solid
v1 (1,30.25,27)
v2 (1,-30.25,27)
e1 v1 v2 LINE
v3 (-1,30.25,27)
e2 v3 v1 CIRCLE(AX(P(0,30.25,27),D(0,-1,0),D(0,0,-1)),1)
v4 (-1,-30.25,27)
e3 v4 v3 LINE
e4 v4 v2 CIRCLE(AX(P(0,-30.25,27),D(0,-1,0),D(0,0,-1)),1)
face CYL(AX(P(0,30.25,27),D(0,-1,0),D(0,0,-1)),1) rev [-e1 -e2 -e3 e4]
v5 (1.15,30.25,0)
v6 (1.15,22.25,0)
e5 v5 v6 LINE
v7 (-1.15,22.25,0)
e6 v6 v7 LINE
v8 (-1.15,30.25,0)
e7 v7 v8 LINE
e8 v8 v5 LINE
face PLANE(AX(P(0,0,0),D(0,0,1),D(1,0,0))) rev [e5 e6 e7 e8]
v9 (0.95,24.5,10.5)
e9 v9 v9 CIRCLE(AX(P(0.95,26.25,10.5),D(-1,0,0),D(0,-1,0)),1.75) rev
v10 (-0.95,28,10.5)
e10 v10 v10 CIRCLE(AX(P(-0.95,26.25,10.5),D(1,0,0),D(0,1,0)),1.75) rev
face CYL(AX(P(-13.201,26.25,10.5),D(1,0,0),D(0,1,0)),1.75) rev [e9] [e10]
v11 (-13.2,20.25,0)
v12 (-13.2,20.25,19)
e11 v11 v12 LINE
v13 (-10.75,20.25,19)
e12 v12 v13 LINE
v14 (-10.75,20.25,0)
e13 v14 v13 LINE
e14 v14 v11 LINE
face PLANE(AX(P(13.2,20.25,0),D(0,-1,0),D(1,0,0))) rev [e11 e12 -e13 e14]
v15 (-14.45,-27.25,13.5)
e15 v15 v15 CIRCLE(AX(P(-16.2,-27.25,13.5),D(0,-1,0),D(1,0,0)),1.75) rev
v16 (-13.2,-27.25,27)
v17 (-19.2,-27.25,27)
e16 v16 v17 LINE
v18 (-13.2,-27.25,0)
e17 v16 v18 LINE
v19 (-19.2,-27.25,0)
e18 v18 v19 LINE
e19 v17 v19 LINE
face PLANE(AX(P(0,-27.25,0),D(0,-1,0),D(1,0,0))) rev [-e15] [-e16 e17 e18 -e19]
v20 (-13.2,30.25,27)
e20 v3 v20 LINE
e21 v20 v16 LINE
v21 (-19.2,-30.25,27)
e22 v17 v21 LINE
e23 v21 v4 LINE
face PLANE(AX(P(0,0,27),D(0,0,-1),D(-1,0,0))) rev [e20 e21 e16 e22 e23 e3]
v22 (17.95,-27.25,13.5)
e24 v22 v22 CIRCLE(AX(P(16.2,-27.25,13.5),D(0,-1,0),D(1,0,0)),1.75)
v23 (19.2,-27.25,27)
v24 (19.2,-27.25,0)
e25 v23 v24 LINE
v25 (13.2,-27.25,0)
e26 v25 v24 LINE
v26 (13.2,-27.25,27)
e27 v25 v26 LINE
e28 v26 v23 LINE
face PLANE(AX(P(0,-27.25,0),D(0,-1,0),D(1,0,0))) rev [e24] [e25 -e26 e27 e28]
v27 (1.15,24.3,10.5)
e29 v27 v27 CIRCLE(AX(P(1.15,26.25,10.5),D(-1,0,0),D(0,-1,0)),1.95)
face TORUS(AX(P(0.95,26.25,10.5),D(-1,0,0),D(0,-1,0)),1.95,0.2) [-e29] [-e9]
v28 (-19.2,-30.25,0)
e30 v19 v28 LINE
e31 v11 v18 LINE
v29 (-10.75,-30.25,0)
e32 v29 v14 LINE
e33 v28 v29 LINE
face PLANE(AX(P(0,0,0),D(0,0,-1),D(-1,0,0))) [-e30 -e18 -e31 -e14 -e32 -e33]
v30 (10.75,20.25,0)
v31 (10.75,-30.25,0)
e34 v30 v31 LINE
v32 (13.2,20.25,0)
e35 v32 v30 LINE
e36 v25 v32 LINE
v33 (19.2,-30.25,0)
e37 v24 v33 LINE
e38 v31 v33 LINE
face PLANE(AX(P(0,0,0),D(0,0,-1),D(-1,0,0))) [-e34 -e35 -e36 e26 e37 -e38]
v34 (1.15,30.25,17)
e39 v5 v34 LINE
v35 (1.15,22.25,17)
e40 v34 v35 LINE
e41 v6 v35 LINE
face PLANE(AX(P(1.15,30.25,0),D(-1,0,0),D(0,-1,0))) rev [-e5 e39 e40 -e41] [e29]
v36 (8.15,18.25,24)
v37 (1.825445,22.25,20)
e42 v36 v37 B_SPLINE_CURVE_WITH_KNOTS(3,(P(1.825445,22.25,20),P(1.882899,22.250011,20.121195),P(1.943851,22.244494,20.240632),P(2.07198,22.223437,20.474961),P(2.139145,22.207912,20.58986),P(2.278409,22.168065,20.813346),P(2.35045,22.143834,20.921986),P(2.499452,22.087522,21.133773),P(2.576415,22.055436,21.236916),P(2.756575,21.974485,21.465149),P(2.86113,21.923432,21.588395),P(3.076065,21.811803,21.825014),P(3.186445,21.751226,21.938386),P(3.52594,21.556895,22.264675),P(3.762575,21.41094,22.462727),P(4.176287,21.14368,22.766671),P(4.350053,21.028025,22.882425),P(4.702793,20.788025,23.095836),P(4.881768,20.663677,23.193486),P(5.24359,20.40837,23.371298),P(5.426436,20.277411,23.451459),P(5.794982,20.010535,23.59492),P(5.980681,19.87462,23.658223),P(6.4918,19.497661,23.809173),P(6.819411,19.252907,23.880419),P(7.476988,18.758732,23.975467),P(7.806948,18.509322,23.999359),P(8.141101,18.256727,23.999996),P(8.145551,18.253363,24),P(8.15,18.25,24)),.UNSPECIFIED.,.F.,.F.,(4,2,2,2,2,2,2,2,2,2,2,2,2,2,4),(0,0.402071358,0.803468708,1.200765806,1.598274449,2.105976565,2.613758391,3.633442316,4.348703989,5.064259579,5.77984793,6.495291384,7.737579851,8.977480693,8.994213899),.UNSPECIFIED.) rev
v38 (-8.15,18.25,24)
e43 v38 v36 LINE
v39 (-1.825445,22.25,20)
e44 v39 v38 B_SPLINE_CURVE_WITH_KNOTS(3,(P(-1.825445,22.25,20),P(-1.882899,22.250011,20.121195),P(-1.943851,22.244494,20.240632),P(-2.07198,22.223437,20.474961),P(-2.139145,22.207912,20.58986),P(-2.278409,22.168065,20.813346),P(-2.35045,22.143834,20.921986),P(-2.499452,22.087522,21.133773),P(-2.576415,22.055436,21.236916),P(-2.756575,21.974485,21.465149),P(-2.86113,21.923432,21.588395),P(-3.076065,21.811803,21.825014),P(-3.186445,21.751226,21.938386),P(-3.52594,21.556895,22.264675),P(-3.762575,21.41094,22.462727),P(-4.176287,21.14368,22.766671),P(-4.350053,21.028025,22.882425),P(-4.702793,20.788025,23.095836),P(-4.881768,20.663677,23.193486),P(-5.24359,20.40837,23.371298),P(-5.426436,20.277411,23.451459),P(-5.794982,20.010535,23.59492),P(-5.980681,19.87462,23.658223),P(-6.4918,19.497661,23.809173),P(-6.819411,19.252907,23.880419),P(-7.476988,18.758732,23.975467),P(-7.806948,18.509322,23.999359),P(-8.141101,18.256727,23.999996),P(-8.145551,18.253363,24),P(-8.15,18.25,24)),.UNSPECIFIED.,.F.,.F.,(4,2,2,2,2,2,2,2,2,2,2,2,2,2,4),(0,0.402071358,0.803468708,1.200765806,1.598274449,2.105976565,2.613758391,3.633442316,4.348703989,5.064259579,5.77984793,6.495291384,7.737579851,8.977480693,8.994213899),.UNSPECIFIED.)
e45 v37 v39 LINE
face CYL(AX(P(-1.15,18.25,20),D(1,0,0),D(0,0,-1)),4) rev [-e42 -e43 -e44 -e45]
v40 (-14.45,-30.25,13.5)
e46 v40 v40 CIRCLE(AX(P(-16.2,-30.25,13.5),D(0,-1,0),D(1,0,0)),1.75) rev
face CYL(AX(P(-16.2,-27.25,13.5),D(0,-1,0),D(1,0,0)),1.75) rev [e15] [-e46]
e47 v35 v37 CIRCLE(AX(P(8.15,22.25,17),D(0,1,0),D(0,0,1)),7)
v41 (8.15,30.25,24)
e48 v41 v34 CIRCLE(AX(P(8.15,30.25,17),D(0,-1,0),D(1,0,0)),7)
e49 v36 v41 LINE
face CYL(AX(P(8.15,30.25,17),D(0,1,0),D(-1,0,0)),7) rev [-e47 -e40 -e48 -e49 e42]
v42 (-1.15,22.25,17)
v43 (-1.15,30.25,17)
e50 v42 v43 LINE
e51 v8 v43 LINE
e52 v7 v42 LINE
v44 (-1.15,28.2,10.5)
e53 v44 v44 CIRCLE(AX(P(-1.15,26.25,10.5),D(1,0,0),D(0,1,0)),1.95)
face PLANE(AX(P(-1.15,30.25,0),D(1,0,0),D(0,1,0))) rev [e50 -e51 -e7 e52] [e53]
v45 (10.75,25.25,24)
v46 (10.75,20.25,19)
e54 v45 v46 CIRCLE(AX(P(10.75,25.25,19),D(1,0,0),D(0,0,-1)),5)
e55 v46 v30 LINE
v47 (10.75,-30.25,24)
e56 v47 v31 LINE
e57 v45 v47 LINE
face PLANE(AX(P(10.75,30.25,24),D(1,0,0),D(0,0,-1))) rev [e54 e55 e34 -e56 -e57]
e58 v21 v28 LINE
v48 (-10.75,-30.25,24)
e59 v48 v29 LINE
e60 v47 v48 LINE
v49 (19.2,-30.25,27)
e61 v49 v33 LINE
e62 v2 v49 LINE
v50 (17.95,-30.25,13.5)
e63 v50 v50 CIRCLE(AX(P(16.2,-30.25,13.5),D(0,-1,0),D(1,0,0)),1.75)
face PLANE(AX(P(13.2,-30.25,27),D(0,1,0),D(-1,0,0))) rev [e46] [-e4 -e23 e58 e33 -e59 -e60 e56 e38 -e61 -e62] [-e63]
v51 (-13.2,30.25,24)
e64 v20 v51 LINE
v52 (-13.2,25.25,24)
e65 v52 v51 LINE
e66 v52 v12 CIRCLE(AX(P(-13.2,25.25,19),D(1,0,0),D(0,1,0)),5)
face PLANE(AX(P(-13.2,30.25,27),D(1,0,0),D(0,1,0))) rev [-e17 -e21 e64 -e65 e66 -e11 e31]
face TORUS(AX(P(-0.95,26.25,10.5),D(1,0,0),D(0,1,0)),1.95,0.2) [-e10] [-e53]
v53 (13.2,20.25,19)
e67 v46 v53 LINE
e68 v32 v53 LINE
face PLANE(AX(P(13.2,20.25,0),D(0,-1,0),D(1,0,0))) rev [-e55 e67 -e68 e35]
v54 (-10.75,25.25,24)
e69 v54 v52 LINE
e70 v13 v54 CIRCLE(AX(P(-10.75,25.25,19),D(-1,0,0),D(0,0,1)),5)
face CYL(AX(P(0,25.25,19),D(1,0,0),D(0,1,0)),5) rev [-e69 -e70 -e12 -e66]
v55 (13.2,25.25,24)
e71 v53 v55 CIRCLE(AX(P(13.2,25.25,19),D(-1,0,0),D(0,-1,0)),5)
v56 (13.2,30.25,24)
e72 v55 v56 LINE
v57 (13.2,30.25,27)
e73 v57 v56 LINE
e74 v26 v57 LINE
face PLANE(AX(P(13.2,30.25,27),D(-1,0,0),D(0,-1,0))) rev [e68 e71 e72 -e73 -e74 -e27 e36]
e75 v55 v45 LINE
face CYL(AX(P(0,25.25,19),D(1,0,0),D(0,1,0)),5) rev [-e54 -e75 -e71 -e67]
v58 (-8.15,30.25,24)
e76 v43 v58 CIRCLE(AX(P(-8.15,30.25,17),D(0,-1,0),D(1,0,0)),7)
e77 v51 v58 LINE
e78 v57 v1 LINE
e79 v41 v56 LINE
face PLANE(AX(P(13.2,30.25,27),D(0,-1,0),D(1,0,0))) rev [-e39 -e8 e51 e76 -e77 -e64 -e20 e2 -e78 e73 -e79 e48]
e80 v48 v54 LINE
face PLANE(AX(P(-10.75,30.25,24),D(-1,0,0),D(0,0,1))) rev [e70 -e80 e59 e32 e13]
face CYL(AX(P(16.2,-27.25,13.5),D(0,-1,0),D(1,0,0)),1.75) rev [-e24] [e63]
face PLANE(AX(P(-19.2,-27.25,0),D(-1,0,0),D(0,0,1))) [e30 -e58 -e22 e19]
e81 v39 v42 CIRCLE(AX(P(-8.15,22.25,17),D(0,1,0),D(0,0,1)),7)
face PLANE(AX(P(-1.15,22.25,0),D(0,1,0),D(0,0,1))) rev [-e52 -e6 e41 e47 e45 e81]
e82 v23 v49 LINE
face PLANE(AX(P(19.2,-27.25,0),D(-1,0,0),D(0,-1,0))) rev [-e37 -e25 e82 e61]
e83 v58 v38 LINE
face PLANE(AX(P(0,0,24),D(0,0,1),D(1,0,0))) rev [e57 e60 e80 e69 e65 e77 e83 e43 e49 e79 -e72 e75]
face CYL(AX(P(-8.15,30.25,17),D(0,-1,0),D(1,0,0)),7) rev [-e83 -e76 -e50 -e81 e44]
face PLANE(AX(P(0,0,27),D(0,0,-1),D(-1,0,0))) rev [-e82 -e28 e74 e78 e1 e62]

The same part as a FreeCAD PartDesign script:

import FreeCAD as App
import Part
import Sketcher
Q = App.Units.Quantity


def edges_at(feature, points):
    """Names of the edges that pass closest to the given points."""
    edges = feature.Shape.Edges
    near = lambda p: min(range(len(edges)), key=lambda i: edges[i].distToShape(Part.Vertex(*p))[0])
    return sorted({f"Edge{near(p) + 1}" for p in points})

doc = App.newDocument("Part")
body = doc.addObject("PartDesign::Body", "Body")

# Sketch on XY plane
sketch1 = doc.addObject("Sketcher::SketchObject", "Sketch")
body.addObject(sketch1)
sketch1.AttachmentSupport = (doc.XY_Plane, [""])
sketch1.MapMode = "FlatFace"
sketch1.addGeometry(Part.LineSegment(App.Vector(-13, 30, 0), App.Vector(-13, -30, 0)), False)
sketch1.addGeometry(Part.LineSegment(App.Vector(-13, -30, 0), App.Vector(13, -30, 0)), False)
sketch1.addGeometry(Part.LineSegment(App.Vector(13, -30, 0), App.Vector(13, 30, 0)), False)
sketch1.addGeometry(Part.LineSegment(App.Vector(13, 30, 0), App.Vector(-13, 30, 0)), False)
sketch1.addConstraint(Sketcher.Constraint("Coincident", 0, 2, 1, 1))
sketch1.addConstraint(Sketcher.Constraint("Coincident", 1, 2, 2, 1))
sketch1.addConstraint(Sketcher.Constraint("Coincident", 2, 2, 3, 1))
sketch1.addConstraint(Sketcher.Constraint("Coincident", 3, 2, 0, 1))
sketch1.addConstraint(Sketcher.Constraint("Vertical", 0))
sketch1.addConstraint(Sketcher.Constraint("Horizontal", 1))
sketch1.addConstraint(Sketcher.Constraint("Vertical", 2))
sketch1.addConstraint(Sketcher.Constraint("Horizontal", 3))
sketch1.addConstraint(Sketcher.Constraint("Symmetric", 0, 2, 2, 2, -1, 1))
sketch1.addConstraint(Sketcher.Constraint("DistanceX", 1, 1, 1, 2, Q("26.4 mm")))
sketch1.addConstraint(Sketcher.Constraint("DistanceY", 0, 2, 0, 1, Q("60.5 mm")))
pad1 = doc.addObject("PartDesign::Pad", "Pad")
body.addObject(pad1)
pad1.Profile = sketch1
pad1.Length = 27

# Sketch on XY plane
sketch2 = doc.addObject("Sketcher::SketchObject", "Sketch001")
body.addObject(sketch2)
sketch2.AttachmentSupport = (doc.XY_Plane, [""])
sketch2.MapMode = "FlatFace"
sketch2.addGeometry(Part.LineSegment(App.Vector(11, 30, 0), App.Vector(11, -30, 0)), False)
sketch2.addGeometry(Part.LineSegment(App.Vector(11, -30, 0), App.Vector(-11, -30, 0)), False)
sketch2.addGeometry(Part.LineSegment(App.Vector(-11, -30, 0), App.Vector(-11, 30, 0)), False)
sketch2.addGeometry(Part.LineSegment(App.Vector(-11, 30, 0), App.Vector(11, 30, 0)), False)
sketch2.addConstraint(Sketcher.Constraint("Coincident", 0, 2, 1, 1))
sketch2.addConstraint(Sketcher.Constraint("Coincident", 1, 2, 2, 1))
sketch2.addConstraint(Sketcher.Constraint("Coincident", 2, 2, 3, 1))
sketch2.addConstraint(Sketcher.Constraint("Coincident", 3, 2, 0, 1))
sketch2.addConstraint(Sketcher.Constraint("Vertical", 0))
sketch2.addConstraint(Sketcher.Constraint("Horizontal", 1))
sketch2.addConstraint(Sketcher.Constraint("Vertical", 2))
sketch2.addConstraint(Sketcher.Constraint("Horizontal", 3))
sketch2.addConstraint(Sketcher.Constraint("Symmetric", 0, 2, 2, 2, -1, 1))
sketch2.addConstraint(Sketcher.Constraint("DistanceX", 1, 2, 1, 1, Q("21.5 mm")))
sketch2.addConstraint(Sketcher.Constraint("DistanceY", 0, 2, 0, 1, Q("60.5 mm")))
pocket1 = doc.addObject("PartDesign::Pocket", "Pocket")
body.addObject(pocket1)
pocket1.Profile = sketch2
pocket1.Length = 24
pocket1.Reversed = True

# Sketch on YZ plane
sketch3 = doc.addObject("Sketcher::SketchObject", "Sketch002")
body.addObject(sketch3)
sketch3.AttachmentSupport = (doc.YZ_Plane, [""])
sketch3.MapMode = "FlatFace"
sketch3.AttachmentOffset = App.Placement(App.Vector(0, 0, -13.2), App.Rotation())
sketch3.addGeometry(Part.LineSegment(App.Vector(30, 0, 0), App.Vector(20, 0, 0)), False)
sketch3.addGeometry(Part.LineSegment(App.Vector(20, 0, 0), App.Vector(20, 24, 0)), False)
sketch3.addGeometry(Part.LineSegment(App.Vector(20, 24, 0), App.Vector(30, 24, 0)), False)
sketch3.addGeometry(Part.LineSegment(App.Vector(30, 24, 0), App.Vector(30, 0, 0)), False)
sketch3.addConstraint(Sketcher.Constraint("Coincident", 0, 2, 1, 1))
sketch3.addConstraint(Sketcher.Constraint("Coincident", 1, 2, 2, 1))
sketch3.addConstraint(Sketcher.Constraint("Coincident", 2, 2, 3, 1))
sketch3.addConstraint(Sketcher.Constraint("Coincident", 3, 2, 0, 1))
sketch3.addConstraint(Sketcher.Constraint("Horizontal", 0))
sketch3.addConstraint(Sketcher.Constraint("Vertical", 1))
sketch3.addConstraint(Sketcher.Constraint("Horizontal", 2))
sketch3.addConstraint(Sketcher.Constraint("Vertical", 3))
sketch3.addConstraint(Sketcher.Constraint("PointOnObject", 0, 2, -1))
sketch3.addConstraint(Sketcher.Constraint("DistanceX", 0, 2, 0, 1, Q("10 mm")))
sketch3.addConstraint(Sketcher.Constraint("DistanceY", 1, 1, 1, 2, Q("24 mm")))
sketch3.addConstraint(Sketcher.Constraint("DistanceX", -1, 1, 0, 2, Q("20.25 mm")))
pocket2 = doc.addObject("PartDesign::Pocket", "Pocket001")
body.addObject(pocket2)
pocket2.Profile = sketch3
pocket2.Type = "ThroughAll"
pocket2.Reversed = True

# Sketch on XY plane
sketch4 = doc.addObject("Sketcher::SketchObject", "Sketch003")
body.addObject(sketch4)
sketch4.AttachmentSupport = (doc.XY_Plane, [""])
sketch4.MapMode = "FlatFace"
sketch4.AttachmentOffset = App.Placement(App.Vector(0, 0, 24), App.Rotation())
sketch4.addGeometry(Part.LineSegment(App.Vector(1.1, 30.2, 0), App.Vector(1.1, 22.2, 0)), False)
sketch4.addGeometry(Part.LineSegment(App.Vector(1.1, 22.2, 0), App.Vector(-1.1, 22.2, 0)), False)
sketch4.addGeometry(Part.LineSegment(App.Vector(-1.1, 22.2, 0), App.Vector(-1.1, 30.2, 0)), False)
sketch4.addGeometry(Part.LineSegment(App.Vector(-1.1, 30.2, 0), App.Vector(1.1, 30.2, 0)), False)
sketch4.addConstraint(Sketcher.Constraint("Coincident", 0, 2, 1, 1))
sketch4.addConstraint(Sketcher.Constraint("Coincident", 1, 2, 2, 1))
sketch4.addConstraint(Sketcher.Constraint("Coincident", 2, 2, 3, 1))
sketch4.addConstraint(Sketcher.Constraint("Coincident", 3, 2, 0, 1))
sketch4.addConstraint(Sketcher.Constraint("Vertical", 0))
sketch4.addConstraint(Sketcher.Constraint("Horizontal", 1))
sketch4.addConstraint(Sketcher.Constraint("Vertical", 2))
sketch4.addConstraint(Sketcher.Constraint("Horizontal", 3))
sketch4.addConstraint(Sketcher.Constraint("DistanceY", 0, 2, 0, 1, Q("8 mm")))
sketch4.addConstraint(Sketcher.Constraint("DistanceX", 1, 2, 1, 1, Q("2.3 mm")))
sketch4.addConstraint(Sketcher.Constraint("DistanceX", -1, 1, 0, 2, Q("1.15 mm")))
sketch4.addConstraint(Sketcher.Constraint("DistanceY", -1, 1, 0, 2, Q("22.25 mm")))
pad2 = doc.addObject("PartDesign::Pad", "Pad001")
body.addObject(pad2)
pad2.Profile = sketch4
pad2.Length = 24
pad2.Reversed = True

# Sketch on YZ plane
sketch5 = doc.addObject("Sketcher::SketchObject", "Sketch004")
body.addObject(sketch5)
sketch5.AttachmentSupport = (doc.YZ_Plane, [""])
sketch5.MapMode = "FlatFace"
sketch5.AttachmentOffset = App.Placement(App.Vector(0, 0, 1.15), App.Rotation())
sketch5.addGeometry(Part.Circle(App.Vector(26.2, 10.5, 0), App.Vector(0, 0, 1), 1.8), False)
sketch5.addConstraint(Sketcher.Constraint("Diameter", 0, Q("3.5 mm")))
sketch5.addConstraint(Sketcher.Constraint("DistanceY", -1, 1, 0, 3, Q("10.5 mm")))
sketch5.addConstraint(Sketcher.Constraint("DistanceX", -1, 1, 0, 3, Q("26.25 mm")))
pocket3 = doc.addObject("PartDesign::Pocket", "Pocket002")
body.addObject(pocket3)
pocket3.Profile = sketch5
pocket3.Type = "UpToFirst"
doc.recompute()

fillet = doc.addObject("PartDesign::Fillet", "Fillet")
body.addObject(fillet)
fillet.Base = (pocket3, edges_at(pocket3, [(1.15, 26.25, 24)]))
fillet.Radius = 7
doc.recompute()

fillet2 = doc.addObject("PartDesign::Fillet", "Fillet001")
body.addObject(fillet2)
fillet2.Base = (fillet, edges_at(fillet, [(-1.15, 26.25, 24)]))
fillet2.Radius = 7
doc.recompute()

fillet3 = doc.addObject("PartDesign::Fillet", "Fillet002")
body.addObject(fillet3)
fillet3.Base = (fillet2, edges_at(fillet2, [(0, 22.25, 24)]))
fillet3.Radius = 4
doc.recompute()

fillet4 = doc.addObject("PartDesign::Fillet", "Fillet003")
body.addObject(fillet4)
fillet4.Base = (fillet3, edges_at(fillet3, [(1.15, 26.25, 12.25), (-1.15, 26.25, 12.25)]))
fillet4.Radius = 0.2
doc.recompute()

fillet5 = doc.addObject("PartDesign::Fillet", "Fillet004")
body.addObject(fillet5)
fillet5.Base = (fillet4, edges_at(fillet4, [(11.975, 20.25, 24), (-11.975, 20.25, 24)]))
fillet5.Radius = 5

# Sketch on XZ plane
sketch6 = doc.addObject("Sketcher::SketchObject", "Sketch005")
body.addObject(sketch6)
sketch6.AttachmentSupport = (doc.XZ_Plane, [""])
sketch6.MapMode = "FlatFace"
sketch6.AttachmentOffset = App.Placement(App.Vector(0, 0, 30.25), App.Rotation())
sketch6.addGeometry(Part.Circle(App.Vector(0, 27, 0), App.Vector(0, 0, 1), 1), False)
sketch6.addConstraint(Sketcher.Constraint("PointOnObject", 0, 3, -2))
sketch6.addConstraint(Sketcher.Constraint("Diameter", 0, Q("2 mm")))
sketch6.addConstraint(Sketcher.Constraint("DistanceY", -1, 1, 0, 3, Q("27 mm")))
pocket4 = doc.addObject("PartDesign::Pocket", "Pocket003")
body.addObject(pocket4)
pocket4.Profile = sketch6
pocket4.Type = "ThroughAll"

# Sketch on XZ plane
sketch7 = doc.addObject("Sketcher::SketchObject", "Sketch006")
body.addObject(sketch7)
sketch7.AttachmentSupport = (doc.XZ_Plane, [""])
sketch7.MapMode = "FlatFace"
sketch7.AttachmentOffset = App.Placement(App.Vector(0, 0, 30.25), App.Rotation())
sketch7.addGeometry(Part.LineSegment(App.Vector(19.2, 0, 0), App.Vector(19.2, 27, 0)), False)
sketch7.addGeometry(Part.LineSegment(App.Vector(19.2, 27, 0), App.Vector(13.2, 27, 0)), False)
sketch7.addGeometry(Part.LineSegment(App.Vector(13.2, 27, 0), App.Vector(13.2, 0, 0)), False)
sketch7.addGeometry(Part.LineSegment(App.Vector(13.2, 0, 0), App.Vector(19.2, 0, 0)), False)
sketch7.addGeometry(Part.Circle(App.Vector(16.2, 13.5, 0), App.Vector(0, 0, 1), 1.8), False)
sketch7.addGeometry(Part.LineSegment(App.Vector(-13.2, 0, 0), App.Vector(-13.2, 27, 0)), False)
sketch7.addGeometry(Part.LineSegment(App.Vector(-13.2, 27, 0), App.Vector(-19.2, 27, 0)), False)
sketch7.addGeometry(Part.LineSegment(App.Vector(-19.2, 27, 0), App.Vector(-19.2, 0, 0)), False)
sketch7.addGeometry(Part.LineSegment(App.Vector(-19.2, 0, 0), App.Vector(-13.2, 0, 0)), False)
sketch7.addGeometry(Part.Circle(App.Vector(-16.2, 13.5, 0), App.Vector(0, 0, 1), 1.8), False)
sketch7.addConstraint(Sketcher.Constraint("Coincident", 0, 2, 1, 1))
sketch7.addConstraint(Sketcher.Constraint("Coincident", 1, 2, 2, 1))
sketch7.addConstraint(Sketcher.Constraint("Coincident", 2, 2, 3, 1))
sketch7.addConstraint(Sketcher.Constraint("Coincident", 3, 2, 0, 1))
sketch7.addConstraint(Sketcher.Constraint("Coincident", 5, 2, 6, 1))
sketch7.addConstraint(Sketcher.Constraint("Coincident", 6, 2, 7, 1))
sketch7.addConstraint(Sketcher.Constraint("Coincident", 7, 2, 8, 1))
sketch7.addConstraint(Sketcher.Constraint("Coincident", 8, 2, 5, 1))
sketch7.addConstraint(Sketcher.Constraint("Vertical", 0))
sketch7.addConstraint(Sketcher.Constraint("Horizontal", 1))
sketch7.addConstraint(Sketcher.Constraint("Vertical", 2))
sketch7.addConstraint(Sketcher.Constraint("Horizontal", 3))
sketch7.addConstraint(Sketcher.Constraint("Vertical", 5))
sketch7.addConstraint(Sketcher.Constraint("Horizontal", 6))
sketch7.addConstraint(Sketcher.Constraint("Vertical", 7))
sketch7.addConstraint(Sketcher.Constraint("Horizontal", 8))
sketch7.addConstraint(Sketcher.Constraint("Equal", 4, 9))
sketch7.addConstraint(Sketcher.Constraint("Symmetric", 3, 2, 7, 2, -1, 1))
sketch7.addConstraint(Sketcher.Constraint("Symmetric", 4, 3, 9, 3, -2))
sketch7.addConstraint(Sketcher.Constraint("Symmetric", 1, 2, 5, 2, -2))
sketch7.addConstraint(Sketcher.Constraint("PointOnObject", 2, 2, -1))
sketch7.addConstraint(Sketcher.Constraint("Diameter", 4, Q("3.5 mm")))
sketch7.addConstraint(Sketcher.Constraint("DistanceX", 1, 2, 1, 1, Q("6 mm")))
sketch7.addConstraint(Sketcher.Constraint("DistanceY", 0, 1, 0, 2, Q("27 mm")))
sketch7.addConstraint(Sketcher.Constraint("DistanceX", 4, 3, 0, 2, Q("3 mm")))
sketch7.addConstraint(Sketcher.Constraint("DistanceX", -1, 1, 4, 3, Q("16.2 mm")))
sketch7.addConstraint(Sketcher.Constraint("DistanceY", -1, 1, 4, 3, Q("13.5 mm")))
pad3 = doc.addObject("PartDesign::Pad", "Pad002")
body.addObject(pad3)
pad3.Profile = sketch7
pad3.Length = 3
pad3.Reversed = True

doc.recompute()
